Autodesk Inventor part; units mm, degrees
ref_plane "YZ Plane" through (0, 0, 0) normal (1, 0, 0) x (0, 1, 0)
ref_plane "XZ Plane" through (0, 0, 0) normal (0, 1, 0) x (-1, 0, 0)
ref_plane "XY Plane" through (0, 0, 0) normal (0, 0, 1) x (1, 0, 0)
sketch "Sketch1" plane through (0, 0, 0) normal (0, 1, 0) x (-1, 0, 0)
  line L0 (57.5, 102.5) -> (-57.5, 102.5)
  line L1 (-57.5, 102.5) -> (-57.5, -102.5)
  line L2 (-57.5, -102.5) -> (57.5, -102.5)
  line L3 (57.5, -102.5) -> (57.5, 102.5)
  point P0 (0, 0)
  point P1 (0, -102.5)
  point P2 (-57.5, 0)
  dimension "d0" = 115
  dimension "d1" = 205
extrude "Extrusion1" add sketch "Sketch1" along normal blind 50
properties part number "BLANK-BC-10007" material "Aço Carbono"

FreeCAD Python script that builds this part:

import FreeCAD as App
import Part
import Sketcher
Q = App.Units.Quantity

doc = App.newDocument("Part")
body = doc.addObject("PartDesign::Body", "Body")

# Sketch on XZ plane
sketch1 = body.newObject("Sketcher::SketchObject", "Sketch")
sketch1.AttachmentSupport = (doc.getObject("XZ_Plane"), [""])
sketch1.MapMode = "FlatFace"
sketch1.addGeometry([
    Part.LineSegment(App.Vector(-58, -102, 0), App.Vector(-58, 102, 0)),
    Part.LineSegment(App.Vector(-58, 102, 0), App.Vector(58, 102, 0)),
    Part.LineSegment(App.Vector(58, 102, 0), App.Vector(58, -102, 0)),
    Part.LineSegment(App.Vector(58, -102, 0), App.Vector(-58, -102, 0)),
], False)
sketch1.addConstraint([
    Sketcher.Constraint("Coincident", 0, 2, 1, 1),
    Sketcher.Constraint("Coincident", 1, 2, 2, 1),
    Sketcher.Constraint("Coincident", 2, 2, 3, 1),
    Sketcher.Constraint("Coincident", 3, 2, 0, 1),
    Sketcher.Constraint("Vertical", 0),
    Sketcher.Constraint("Horizontal", 1),
    Sketcher.Constraint("Vertical", 2),
    Sketcher.Constraint("Horizontal", 3),
    Sketcher.Constraint("Symmetric", 0, 2, 2, 2, -1, 1),
    Sketcher.Constraint("DistanceX", 1, 1, 1, 2, Q("115 mm")),
    Sketcher.Constraint("DistanceY", 0, 1, 0, 2, Q("205 mm")),
])
pad1 = body.newObject("PartDesign::Pad", "Pad")
pad1.Profile = sketch1
pad1.Length = 50
pad1.Reversed = True

doc.recompute()
